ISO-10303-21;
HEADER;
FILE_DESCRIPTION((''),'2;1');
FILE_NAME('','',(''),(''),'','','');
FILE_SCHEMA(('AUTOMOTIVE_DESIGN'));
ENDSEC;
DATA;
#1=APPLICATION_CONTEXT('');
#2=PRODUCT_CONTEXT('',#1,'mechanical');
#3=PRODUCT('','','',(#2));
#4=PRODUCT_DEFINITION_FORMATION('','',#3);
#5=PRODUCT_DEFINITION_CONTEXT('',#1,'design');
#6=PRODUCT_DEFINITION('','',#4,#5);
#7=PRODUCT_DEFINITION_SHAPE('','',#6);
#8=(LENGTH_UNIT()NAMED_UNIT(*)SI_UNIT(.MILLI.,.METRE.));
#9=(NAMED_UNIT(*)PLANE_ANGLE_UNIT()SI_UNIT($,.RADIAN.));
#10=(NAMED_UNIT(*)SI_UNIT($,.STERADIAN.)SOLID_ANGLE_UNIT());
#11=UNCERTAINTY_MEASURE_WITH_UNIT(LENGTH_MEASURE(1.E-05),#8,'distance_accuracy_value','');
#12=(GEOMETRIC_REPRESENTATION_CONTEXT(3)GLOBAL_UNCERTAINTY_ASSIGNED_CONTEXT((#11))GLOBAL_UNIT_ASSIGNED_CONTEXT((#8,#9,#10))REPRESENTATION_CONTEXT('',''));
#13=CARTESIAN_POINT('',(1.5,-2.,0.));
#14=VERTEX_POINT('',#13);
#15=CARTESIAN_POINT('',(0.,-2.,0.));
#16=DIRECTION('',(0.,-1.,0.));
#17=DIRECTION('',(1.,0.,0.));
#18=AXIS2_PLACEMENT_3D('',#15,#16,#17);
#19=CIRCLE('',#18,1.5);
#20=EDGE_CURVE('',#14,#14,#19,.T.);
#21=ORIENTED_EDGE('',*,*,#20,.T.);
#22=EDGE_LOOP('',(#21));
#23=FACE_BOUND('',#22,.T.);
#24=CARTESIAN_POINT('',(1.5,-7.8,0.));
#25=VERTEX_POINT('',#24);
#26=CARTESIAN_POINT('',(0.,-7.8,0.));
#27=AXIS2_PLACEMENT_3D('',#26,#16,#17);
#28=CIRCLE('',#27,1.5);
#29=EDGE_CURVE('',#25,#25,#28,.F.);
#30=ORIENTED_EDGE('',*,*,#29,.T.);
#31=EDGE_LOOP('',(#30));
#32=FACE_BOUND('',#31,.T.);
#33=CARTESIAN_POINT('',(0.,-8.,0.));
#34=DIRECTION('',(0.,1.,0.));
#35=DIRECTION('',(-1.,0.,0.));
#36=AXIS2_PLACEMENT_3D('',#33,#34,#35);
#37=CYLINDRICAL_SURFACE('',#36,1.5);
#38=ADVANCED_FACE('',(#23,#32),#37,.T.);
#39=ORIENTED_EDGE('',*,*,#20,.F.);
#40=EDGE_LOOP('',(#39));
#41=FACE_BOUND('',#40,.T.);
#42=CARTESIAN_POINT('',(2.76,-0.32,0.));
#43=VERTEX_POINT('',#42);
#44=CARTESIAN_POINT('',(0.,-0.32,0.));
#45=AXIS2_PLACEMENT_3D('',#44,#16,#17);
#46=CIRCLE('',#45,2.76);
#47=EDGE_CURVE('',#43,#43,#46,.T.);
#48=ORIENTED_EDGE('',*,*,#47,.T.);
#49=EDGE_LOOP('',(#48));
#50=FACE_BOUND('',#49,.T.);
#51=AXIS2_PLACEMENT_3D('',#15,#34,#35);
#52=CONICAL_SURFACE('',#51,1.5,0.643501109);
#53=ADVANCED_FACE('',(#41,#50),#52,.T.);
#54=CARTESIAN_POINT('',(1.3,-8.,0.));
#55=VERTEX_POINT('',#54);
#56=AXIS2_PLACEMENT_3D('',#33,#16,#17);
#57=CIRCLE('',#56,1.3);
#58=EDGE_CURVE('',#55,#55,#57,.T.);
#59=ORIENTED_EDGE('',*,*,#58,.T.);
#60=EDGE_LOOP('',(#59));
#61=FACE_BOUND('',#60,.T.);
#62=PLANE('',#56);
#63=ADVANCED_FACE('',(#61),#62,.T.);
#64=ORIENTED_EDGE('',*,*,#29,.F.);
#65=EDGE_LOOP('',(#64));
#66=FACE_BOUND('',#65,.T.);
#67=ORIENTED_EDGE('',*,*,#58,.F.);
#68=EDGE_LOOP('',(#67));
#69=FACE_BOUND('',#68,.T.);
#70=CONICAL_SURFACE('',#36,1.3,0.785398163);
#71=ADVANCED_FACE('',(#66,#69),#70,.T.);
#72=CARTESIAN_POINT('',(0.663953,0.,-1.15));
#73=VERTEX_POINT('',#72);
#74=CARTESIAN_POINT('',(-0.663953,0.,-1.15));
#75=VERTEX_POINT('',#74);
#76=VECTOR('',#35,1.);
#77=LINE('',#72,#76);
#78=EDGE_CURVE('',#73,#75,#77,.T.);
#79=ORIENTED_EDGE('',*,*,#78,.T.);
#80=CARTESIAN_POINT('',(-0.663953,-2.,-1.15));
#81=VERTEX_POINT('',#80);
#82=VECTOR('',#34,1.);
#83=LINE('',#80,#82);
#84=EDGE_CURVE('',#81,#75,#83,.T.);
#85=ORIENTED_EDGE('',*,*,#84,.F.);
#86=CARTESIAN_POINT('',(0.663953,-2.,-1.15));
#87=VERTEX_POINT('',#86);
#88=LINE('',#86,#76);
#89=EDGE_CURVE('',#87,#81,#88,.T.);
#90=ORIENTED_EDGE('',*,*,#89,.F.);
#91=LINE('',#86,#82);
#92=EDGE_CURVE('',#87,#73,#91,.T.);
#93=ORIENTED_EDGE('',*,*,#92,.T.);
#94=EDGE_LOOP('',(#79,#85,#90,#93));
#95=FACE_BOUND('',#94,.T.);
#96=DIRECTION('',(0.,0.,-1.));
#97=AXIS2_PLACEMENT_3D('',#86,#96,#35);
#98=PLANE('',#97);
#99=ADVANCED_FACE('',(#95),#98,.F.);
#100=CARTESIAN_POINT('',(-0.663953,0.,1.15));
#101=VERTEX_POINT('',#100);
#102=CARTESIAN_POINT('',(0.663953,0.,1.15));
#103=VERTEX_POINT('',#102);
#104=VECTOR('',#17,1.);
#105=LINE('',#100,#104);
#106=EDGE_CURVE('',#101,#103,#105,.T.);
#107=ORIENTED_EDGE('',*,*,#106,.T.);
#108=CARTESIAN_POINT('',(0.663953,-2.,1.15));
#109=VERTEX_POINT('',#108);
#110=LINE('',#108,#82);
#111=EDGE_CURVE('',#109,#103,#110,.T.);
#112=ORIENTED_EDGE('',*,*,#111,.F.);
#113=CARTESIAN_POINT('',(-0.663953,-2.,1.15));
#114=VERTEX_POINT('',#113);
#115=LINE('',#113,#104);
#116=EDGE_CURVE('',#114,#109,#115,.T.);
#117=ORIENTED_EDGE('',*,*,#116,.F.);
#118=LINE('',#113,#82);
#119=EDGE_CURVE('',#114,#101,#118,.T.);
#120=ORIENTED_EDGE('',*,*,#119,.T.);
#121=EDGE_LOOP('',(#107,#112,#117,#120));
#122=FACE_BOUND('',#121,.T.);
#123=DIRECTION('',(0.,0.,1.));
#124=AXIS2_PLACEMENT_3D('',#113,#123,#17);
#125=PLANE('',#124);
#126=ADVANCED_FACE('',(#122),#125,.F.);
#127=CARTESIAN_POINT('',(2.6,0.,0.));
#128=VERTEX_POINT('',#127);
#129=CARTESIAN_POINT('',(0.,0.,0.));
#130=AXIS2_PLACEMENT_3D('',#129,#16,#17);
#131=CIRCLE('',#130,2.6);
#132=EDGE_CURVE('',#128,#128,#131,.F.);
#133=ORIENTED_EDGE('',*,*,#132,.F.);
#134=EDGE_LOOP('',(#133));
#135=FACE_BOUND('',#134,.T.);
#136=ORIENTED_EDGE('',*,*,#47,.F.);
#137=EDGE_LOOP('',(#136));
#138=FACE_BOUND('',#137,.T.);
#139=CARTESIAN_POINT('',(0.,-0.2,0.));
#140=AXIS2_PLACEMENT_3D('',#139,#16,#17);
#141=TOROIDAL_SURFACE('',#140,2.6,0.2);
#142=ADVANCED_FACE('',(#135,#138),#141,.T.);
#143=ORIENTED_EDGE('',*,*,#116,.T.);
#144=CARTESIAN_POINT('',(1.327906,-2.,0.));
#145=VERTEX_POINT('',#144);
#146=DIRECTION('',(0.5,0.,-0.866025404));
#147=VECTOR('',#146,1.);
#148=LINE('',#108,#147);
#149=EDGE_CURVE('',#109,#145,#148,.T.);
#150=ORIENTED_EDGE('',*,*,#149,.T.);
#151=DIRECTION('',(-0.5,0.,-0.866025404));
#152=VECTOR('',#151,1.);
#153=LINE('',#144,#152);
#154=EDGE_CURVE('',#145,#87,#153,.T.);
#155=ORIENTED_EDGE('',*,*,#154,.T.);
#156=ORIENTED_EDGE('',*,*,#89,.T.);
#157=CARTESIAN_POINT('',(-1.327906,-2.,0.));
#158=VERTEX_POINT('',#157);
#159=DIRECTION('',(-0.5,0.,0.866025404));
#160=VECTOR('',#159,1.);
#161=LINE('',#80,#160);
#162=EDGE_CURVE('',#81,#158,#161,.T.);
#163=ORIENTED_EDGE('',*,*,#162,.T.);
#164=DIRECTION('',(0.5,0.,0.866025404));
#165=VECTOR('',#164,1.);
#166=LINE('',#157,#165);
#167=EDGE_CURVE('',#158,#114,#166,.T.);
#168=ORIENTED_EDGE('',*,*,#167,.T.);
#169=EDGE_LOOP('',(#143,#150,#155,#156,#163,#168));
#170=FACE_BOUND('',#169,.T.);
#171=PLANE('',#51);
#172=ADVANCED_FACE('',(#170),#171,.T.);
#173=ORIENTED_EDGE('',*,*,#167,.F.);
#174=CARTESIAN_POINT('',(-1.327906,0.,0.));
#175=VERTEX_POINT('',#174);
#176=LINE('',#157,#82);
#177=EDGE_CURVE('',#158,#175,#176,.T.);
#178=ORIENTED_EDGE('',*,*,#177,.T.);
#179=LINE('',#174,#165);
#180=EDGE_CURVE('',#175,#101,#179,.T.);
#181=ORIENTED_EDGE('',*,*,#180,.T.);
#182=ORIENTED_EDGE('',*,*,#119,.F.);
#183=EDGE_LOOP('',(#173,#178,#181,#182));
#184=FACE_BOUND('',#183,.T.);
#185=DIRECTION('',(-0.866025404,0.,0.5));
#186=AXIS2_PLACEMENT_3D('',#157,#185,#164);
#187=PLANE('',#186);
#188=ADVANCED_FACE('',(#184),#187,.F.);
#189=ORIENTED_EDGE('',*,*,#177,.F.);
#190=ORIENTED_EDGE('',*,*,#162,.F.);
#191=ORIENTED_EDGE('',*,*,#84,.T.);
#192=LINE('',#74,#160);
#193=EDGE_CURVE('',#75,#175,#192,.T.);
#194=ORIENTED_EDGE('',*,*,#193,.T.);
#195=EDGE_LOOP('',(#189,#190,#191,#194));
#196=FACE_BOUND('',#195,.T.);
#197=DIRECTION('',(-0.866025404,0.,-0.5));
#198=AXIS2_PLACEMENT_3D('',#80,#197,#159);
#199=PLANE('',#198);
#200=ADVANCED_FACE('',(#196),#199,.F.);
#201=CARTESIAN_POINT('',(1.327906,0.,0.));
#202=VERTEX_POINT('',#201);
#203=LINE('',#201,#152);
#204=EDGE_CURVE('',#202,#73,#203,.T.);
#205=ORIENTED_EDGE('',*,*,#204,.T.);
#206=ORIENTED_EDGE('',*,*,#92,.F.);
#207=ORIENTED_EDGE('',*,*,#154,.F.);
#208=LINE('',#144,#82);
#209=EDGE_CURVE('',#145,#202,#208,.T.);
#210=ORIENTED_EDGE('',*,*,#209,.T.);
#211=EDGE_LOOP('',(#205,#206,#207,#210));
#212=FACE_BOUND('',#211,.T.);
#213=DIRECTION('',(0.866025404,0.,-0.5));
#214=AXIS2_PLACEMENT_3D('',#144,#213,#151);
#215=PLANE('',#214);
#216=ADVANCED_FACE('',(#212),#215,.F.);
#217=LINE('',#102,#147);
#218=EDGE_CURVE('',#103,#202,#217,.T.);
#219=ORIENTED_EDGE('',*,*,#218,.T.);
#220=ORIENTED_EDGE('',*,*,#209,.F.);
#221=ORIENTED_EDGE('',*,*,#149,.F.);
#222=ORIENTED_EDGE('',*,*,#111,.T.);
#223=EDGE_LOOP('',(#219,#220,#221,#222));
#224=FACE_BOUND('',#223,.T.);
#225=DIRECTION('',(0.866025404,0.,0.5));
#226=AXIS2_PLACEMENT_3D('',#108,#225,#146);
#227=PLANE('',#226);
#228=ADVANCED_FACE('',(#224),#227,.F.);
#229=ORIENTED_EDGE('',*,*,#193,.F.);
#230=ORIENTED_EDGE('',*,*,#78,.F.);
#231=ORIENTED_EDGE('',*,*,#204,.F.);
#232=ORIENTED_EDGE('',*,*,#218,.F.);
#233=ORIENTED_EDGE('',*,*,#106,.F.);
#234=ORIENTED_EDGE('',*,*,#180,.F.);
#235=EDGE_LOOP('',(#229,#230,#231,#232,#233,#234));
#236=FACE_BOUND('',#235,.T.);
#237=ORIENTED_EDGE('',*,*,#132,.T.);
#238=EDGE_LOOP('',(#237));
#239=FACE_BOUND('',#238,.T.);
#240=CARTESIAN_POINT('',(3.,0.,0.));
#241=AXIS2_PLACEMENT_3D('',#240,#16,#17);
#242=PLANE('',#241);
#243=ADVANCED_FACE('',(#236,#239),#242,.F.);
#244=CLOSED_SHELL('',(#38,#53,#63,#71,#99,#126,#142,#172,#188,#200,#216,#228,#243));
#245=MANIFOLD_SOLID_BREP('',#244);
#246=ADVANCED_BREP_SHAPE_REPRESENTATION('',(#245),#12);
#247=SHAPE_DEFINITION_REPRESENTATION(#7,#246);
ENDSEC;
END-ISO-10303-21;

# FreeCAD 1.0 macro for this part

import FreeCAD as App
import Part
import Sketcher
from FreeCAD import Vector
Q = App.Units.Quantity


def edges_at(feature, points):
    """Names of the edges that pass closest to the given points."""
    edges = feature.Shape.Edges
    near = lambda p: min(range(len(edges)), key=lambda i: edges[i].distToShape(Part.Vertex(*p))[0])
    return sorted({f"Edge{near(p) + 1}" for p in points})


def add_polygon(sketch, points):
    """Adds a closed chain of lines whose ends are joined by coincident constraints."""
    first, n = sketch.GeometryCount, len(points)
    for a, b in zip(points, points[1:] + points[:1]):
        sketch.addGeometry(Part.LineSegment(App.Vector(*a, 0), App.Vector(*b, 0)), False)
    for i in range(n):
        sketch.addConstraint(Sketcher.Constraint("Coincident", first + i, 2, first + (i + 1) % n, 1))

doc = App.newDocument("Part")
body = doc.addObject("PartDesign::Body", "Body")

sketch1 = body.newObject("Sketcher::SketchObject", "Sketch")
sketch1.AttachmentSupport = (doc.getObject("XY_Plane"), [""])
sketch1.MapMode = "FlatFace"
add_polygon(sketch1, [(0, 0), (0, -2), (1.5, -2), (3, 0)])
sketch1.addConstraint([
    Sketcher.Constraint("Vertical", 0),
    Sketcher.Constraint("Horizontal", 1),
    Sketcher.Constraint("Horizontal", 3),
    Sketcher.Constraint("Coincident", 3, 2, -1, 1),
    Sketcher.Constraint("DistanceX", 3, 2, 3, 1, Q("3 mm")),
    Sketcher.Constraint("DistanceY", 0, 2, 0, 1, Q("2 mm")),
    Sketcher.Constraint("DistanceX", 1, 1, 1, 2, Q("1.5 mm")),
])
revolution = body.newObject("PartDesign::Revolution", "Revolution")
revolution.Profile = sketch1
revolution.ReferenceAxis = (sketch1, ["V_Axis"])
revolution.Angle = 360

sketch2 = body.newObject("Sketcher::SketchObject", "Sketch001")
sketch2.AttachmentSupport = (doc.getObject("XZ_Plane"), [""])
sketch2.MapMode = "FlatFace"
sketch2.AttachmentOffset = App.Placement(Vector(0, 0, 2), App.Rotation())
sketch2.addGeometry(Part.Circle(Vector(0, 0, 0), Vector(0, 0, 1), 1.5), False)
sketch2.addConstraint([
    Sketcher.Constraint("Coincident", 0, 3, -1, 1),
    Sketcher.Constraint("Diameter", 0, Q("3 mm")),
])
pad1 = body.newObject("PartDesign::Pad", "Pad")
pad1.Profile = sketch2
pad1.Length = 6

sketch3 = body.newObject("Sketcher::SketchObject", "Sketch002")
sketch3.AttachmentSupport = (doc.getObject("XZ_Plane"), [""])
sketch3.MapMode = "FlatFace"
add_polygon(sketch3, [(-1.327906, 0), (-0.663953, 1.15), (0.663953, 1.15), (1.327906, 0), (0.663953, -1.15), (-0.663953, -1.15)])
sketch3.addConstraint([
    Sketcher.Constraint("Horizontal", 1),
    Sketcher.Constraint("Horizontal", 4),
    Sketcher.Constraint("Symmetric", 0, 2, 3, 2, -1, 1),
    Sketcher.Constraint("Symmetric", 2, 2, 5, 2, -1, 1),
    Sketcher.Constraint("PointOnObject", 2, 2, -1),
    Sketcher.Constraint("Parallel", 2, 5),
    Sketcher.Constraint("Vertical", 1, 2, 3, 2),
    Sketcher.Constraint("Angle", 0, Q("60 deg")),
    Sketcher.Constraint("DistanceY", 3, 2, 1, 2, Q("2.3 mm")),
    Sketcher.Constraint("DistanceX", 1, 1, 1, 2, Q("1.327906 mm")),
])
pocket1 = body.newObject("PartDesign::Pocket", "Pocket")
pocket1.Profile = sketch3
pocket1.Length = 2
pocket1.Reversed = True
doc.recompute()

chamfer = body.newObject("PartDesign::Chamfer", "Chamfer")
chamfer.Base = (pocket1, edges_at(pocket1, [(-1.5, -8, 0)]))
chamfer.Size = 0.2
doc.recompute()

fillet = body.newObject("PartDesign::Fillet", "Fillet")
fillet.Base = (chamfer, edges_at(chamfer, [(-3, 0, 0)]))
fillet.Radius = 0.2

doc.recompute()
